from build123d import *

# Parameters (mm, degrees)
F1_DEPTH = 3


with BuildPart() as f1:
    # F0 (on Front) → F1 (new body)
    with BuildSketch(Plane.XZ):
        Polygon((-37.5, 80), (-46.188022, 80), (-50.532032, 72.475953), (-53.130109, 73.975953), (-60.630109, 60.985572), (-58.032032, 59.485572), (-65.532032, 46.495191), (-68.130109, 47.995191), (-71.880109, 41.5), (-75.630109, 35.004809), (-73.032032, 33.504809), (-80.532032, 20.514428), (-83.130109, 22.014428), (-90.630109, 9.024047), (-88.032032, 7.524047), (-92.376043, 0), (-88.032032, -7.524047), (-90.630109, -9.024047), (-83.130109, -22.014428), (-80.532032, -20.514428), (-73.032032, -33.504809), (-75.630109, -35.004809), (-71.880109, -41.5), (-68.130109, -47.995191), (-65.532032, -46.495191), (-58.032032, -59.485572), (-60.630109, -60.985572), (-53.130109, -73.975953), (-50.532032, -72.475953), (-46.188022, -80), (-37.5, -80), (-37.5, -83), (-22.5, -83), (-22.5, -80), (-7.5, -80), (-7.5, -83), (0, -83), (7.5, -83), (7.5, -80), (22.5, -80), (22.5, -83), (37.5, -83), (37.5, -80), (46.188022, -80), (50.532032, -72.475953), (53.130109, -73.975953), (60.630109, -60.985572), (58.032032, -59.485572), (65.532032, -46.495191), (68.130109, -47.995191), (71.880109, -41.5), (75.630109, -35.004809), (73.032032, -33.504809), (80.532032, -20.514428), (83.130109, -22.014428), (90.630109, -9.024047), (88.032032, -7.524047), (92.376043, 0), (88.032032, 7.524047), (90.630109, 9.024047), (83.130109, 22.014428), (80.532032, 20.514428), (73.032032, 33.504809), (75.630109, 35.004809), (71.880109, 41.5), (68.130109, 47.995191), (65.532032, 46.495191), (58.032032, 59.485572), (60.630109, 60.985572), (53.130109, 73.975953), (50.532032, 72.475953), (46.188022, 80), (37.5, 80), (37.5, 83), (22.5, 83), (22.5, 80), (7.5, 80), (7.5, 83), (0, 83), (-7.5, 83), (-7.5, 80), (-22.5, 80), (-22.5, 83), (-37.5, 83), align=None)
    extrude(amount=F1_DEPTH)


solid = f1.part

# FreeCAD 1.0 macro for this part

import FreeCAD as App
import Part
import Sketcher

V = App.Vector
Q = App.Units.Quantity


def add_polygon(sketch, points):
    """Adds a closed chain of lines whose ends are joined by coincident constraints."""
    first, n = sketch.GeometryCount, len(points)
    for a, b in zip(points, points[1:] + points[:1]):
        sketch.addGeometry(Part.LineSegment(App.Vector(*a, 0), App.Vector(*b, 0)), False)
    for i in range(n):
        sketch.addConstraint(Sketcher.Constraint("Coincident", first + i, 2, first + (i + 1) % n, 1))

doc = App.newDocument("Part")
params = doc.addObject("Spreadsheet::Sheet", "Params")
for row, (alias, value) in enumerate([
    ("sketch1_width", "15 mm"),
    ("sketch1_height", "3 mm"),
    ("sketch1_length", "3.000001 mm"),
    ("sketch1_length2", "15 mm"),
    ("pad1_length", "3 mm"),
], start=1):
    params.set(f"A{row}", alias)
    params.set(f"B{row}", "=" + value)
    params.setAlias(f"B{row}", alias)

body = doc.addObject("PartDesign::Body", "Body")

# Sketch on XZ plane
sketch1 = body.newObject("Sketcher::SketchObject", "Sketch")
sketch1.AttachmentSupport = (doc.getObject("XZ_Plane"), [""])
sketch1.MapMode = "FlatFace"
add_polygon(sketch1, [(-37.5, 80), (-46.2, 80), (-50.5, 72.5), (-53.1, 74), (-60.6, 61), (-58, 59.5), (-65.5, 46.5), (-68.1, 48), (-75.6, 35), (-73, 33.5), (-80.5, 20.5), (-83.1, 22), (-90.6, 9), (-88, 7.5), (-92.4, 0), (-88, -7.5), (-90.6, -9), (-83.1, -22), (-80.5, -20.5), (-73, -33.5), (-75.6, -35), (-68.1, -48), (-65.5, -46.5), (-58, -59.5), (-60.6, -61), (-53.1, -74), (-50.5, -72.5), (-46.2, -80), (-37.5, -80), (-37.5, -83), (-22.5, -83), (-22.5, -80), (-7.5, -80), (-7.5, -83), (7.5, -83), (7.5, -80), (22.5, -80), (22.5, -83), (37.5, -83), (37.5, -80), (46.2, -80), (50.5, -72.5), (53.1, -74), (60.6, -61), (58, -59.5), (65.5, -46.5), (68.1, -48), (75.6, -35), (73, -33.5), (80.5, -20.5), (83.1, -22), (90.6, -9), (88, -7.5), (92.4, 0), (88, 7.5), (90.6, 9), (83.1, 22), (80.5, 20.5), (73, 33.5), (75.6, 35), (68.1, 48), (65.5, 46.5), (58, 59.5), (60.6, 61), (53.1, 74), (50.5, 72.5), (46.2, 80), (37.5, 80), (37.5, 83), (22.5, 83), (22.5, 80), (7.5, 80), (7.5, 83), (-7.5, 83), (-7.5, 80), (-22.5, 80), (-22.5, 83), (-37.5, 83)])  # lines 0-77
sketch1.addConstraint([
    Sketcher.Constraint("Horizontal", 0),
    Sketcher.Constraint("Horizontal", 27),
    Sketcher.Constraint("Vertical", 28),
    Sketcher.Constraint("Horizontal", 29),
    Sketcher.Constraint("Vertical", 30),
    Sketcher.Constraint("Horizontal", 31),
    Sketcher.Constraint("Vertical", 32),
    Sketcher.Constraint("Horizontal", 33),
    Sketcher.Constraint("Vertical", 34),
    Sketcher.Constraint("Horizontal", 35),
    Sketcher.Constraint("Vertical", 36),
    Sketcher.Constraint("Horizontal", 37),
    Sketcher.Constraint("Vertical", 38),
    Sketcher.Constraint("Horizontal", 39),
    Sketcher.Constraint("Horizontal", 66),
    Sketcher.Constraint("Vertical", 67),
    Sketcher.Constraint("Horizontal", 68),
    Sketcher.Constraint("Vertical", 69),
    Sketcher.Constraint("Horizontal", 70),
    Sketcher.Constraint("Vertical", 71),
    Sketcher.Constraint("Horizontal", 72),
    Sketcher.Constraint("Vertical", 73),
    Sketcher.Constraint("Horizontal", 74),
    Sketcher.Constraint("Vertical", 75),
    Sketcher.Constraint("Horizontal", 76),
    Sketcher.Constraint("Vertical", 77),
    Sketcher.Constraint("Symmetric", 0, 2, 39, 2, -1, 1),
    Sketcher.Constraint("Symmetric", 1, 2, 40, 2, -1, 1),
    Sketcher.Constraint("Symmetric", 2, 2, 41, 2, -1, 1),
    Sketcher.Constraint("Symmetric", 3, 2, 42, 2, -1, 1),
    Sketcher.Constraint("Symmetric", 4, 2, 43, 2, -1, 1),
    Sketcher.Constraint("Symmetric", 5, 2, 44, 2, -1, 1),
    Sketcher.Constraint("Symmetric", 6, 2, 45, 2, -1, 1),
    Sketcher.Constraint("Symmetric", 7, 2, 46, 2, -1, 1),
    Sketcher.Constraint("Symmetric", 8, 2, 47, 2, -1, 1),
    Sketcher.Constraint("Symmetric", 9, 2, 48, 2, -1, 1),
    Sketcher.Constraint("Symmetric", 10, 2, 49, 2, -1, 1),
    Sketcher.Constraint("Symmetric", 11, 2, 50, 2, -1, 1),
    Sketcher.Constraint("Symmetric", 12, 2, 51, 2, -1, 1),
    Sketcher.Constraint("Symmetric", 13, 2, 52, 2, -1, 1),
    Sketcher.Constraint("Symmetric", 14, 2, 53, 2, -1, 1),
    Sketcher.Constraint("Symmetric", 15, 2, 54, 2, -1, 1),
    Sketcher.Constraint("Symmetric", 16, 2, 55, 2, -1, 1),
    Sketcher.Constraint("Symmetric", 17, 2, 56, 2, -1, 1),
    Sketcher.Constraint("Symmetric", 18, 2, 57, 2, -1, 1),
    Sketcher.Constraint("Symmetric", 19, 2, 58, 2, -1, 1),
    Sketcher.Constraint("Symmetric", 20, 2, 59, 2, -1, 1),
    Sketcher.Constraint("Symmetric", 21, 2, 60, 2, -1, 1),
    Sketcher.Constraint("Symmetric", 22, 2, 61, 2, -1, 1),
    Sketcher.Constraint("Symmetric", 23, 2, 62, 2, -1, 1),
    Sketcher.Constraint("Symmetric", 24, 2, 63, 2, -1, 1),
    Sketcher.Constraint("Symmetric", 25, 2, 64, 2, -1, 1),
    Sketcher.Constraint("Symmetric", 26, 2, 65, 2, -1, 1),
    Sketcher.Constraint("Symmetric", 28, 2, 67, 2, -1, 1),
    Sketcher.Constraint("Symmetric", 30, 2, 69, 2, -1, 1),
    Sketcher.Constraint("Symmetric", 32, 2, 71, 2, -1, 1),
    Sketcher.Constraint("Symmetric", 34, 2, 73, 2, -1, 1),
    Sketcher.Constraint("Symmetric", 36, 2, 75, 2, -1, 1),
    Sketcher.Constraint("Symmetric", 31, 2, 34, 2, -2),
    Sketcher.Constraint("Symmetric", 29, 2, 36, 2, -2),
    Sketcher.Constraint("Symmetric", 27, 2, 38, 2, -2),
    Sketcher.Constraint("Symmetric", 25, 2, 40, 2, -2),
    Sketcher.Constraint("Symmetric", 24, 2, 41, 2, -2),
    Sketcher.Constraint("Symmetric", 23, 2, 42, 2, -2),
    Sketcher.Constraint("Symmetric", 22, 2, 43, 2, -2),
    Sketcher.Constraint("Symmetric", 21, 2, 44, 2, -2),
    Sketcher.Constraint("Symmetric", 20, 2, 45, 2, -2),
    Sketcher.Constraint("Symmetric", 19, 2, 46, 2, -2),
    Sketcher.Constraint("Symmetric", 18, 2, 47, 2, -2),
    Sketcher.Constraint("Symmetric", 17, 2, 48, 2, -2),
    Sketcher.Constraint("Symmetric", 16, 2, 49, 2, -2),
    Sketcher.Constraint("Symmetric", 15, 2, 50, 2, -2),
    Sketcher.Constraint("Symmetric", 14, 2, 51, 2, -2),
    Sketcher.Constraint("PointOnObject", 13, 2, -1),
    Sketcher.Constraint("Perpendicular", 1, 2),
    Sketcher.Constraint("Perpendicular", 2, 3),
    Sketcher.Constraint("Perpendicular", 3, 4),
    Sketcher.Constraint("Perpendicular", 4, 5),
    Sketcher.Constraint("Perpendicular", 5, 6),
    Sketcher.Constraint("Perpendicular", 6, 7),
    Sketcher.Constraint("Perpendicular", 7, 8),
    Sketcher.Constraint("Perpendicular", 8, 9),
    Sketcher.Constraint("Perpendicular", 9, 10),
    Sketcher.Constraint("Perpendicular", 10, 11),
    Sketcher.Constraint("Perpendicular", 11, 12),
    Sketcher.Constraint("Perpendicular", 12, 13),
    Sketcher.Constraint("Perpendicular", 25, 26),
    Sketcher.Constraint("Horizontal", 27, 2, 30, 2),
    Sketcher.Constraint("Horizontal", 29, 2, 32, 2),
    Sketcher.Constraint("Vertical", 28, 2, 76, 2),
    Sketcher.Constraint("Equal", 29, 31),
    Sketcher.Constraint("Equal", 31, 33),
    Sketcher.Constraint("Equal", 2, 4),
    Sketcher.Constraint("Equal", 3, 5),
    Sketcher.Constraint("Equal", 4, 6),
    Sketcher.Constraint("Equal", 5, 7),
    Sketcher.Constraint("Equal", 6, 8),
    Sketcher.Constraint("Equal", 7, 9),
    Sketcher.Constraint("Equal", 8, 10),
    Sketcher.Constraint("Equal", 9, 11),
    Sketcher.Constraint("Equal", 10, 12),
    Sketcher.Constraint("Equal", 1, 13),
    Sketcher.Constraint("DistanceX", 29, 1, 29, 2, Q("15 mm")),
    Sketcher.Constraint("DistanceY", 28, 2, 28, 1, Q("3 mm")),
    Sketcher.Constraint("Angle", 1, Q("-119.999997 deg")),
    Sketcher.Constraint("Distance", 2, Q("3.000001 mm")),
    Sketcher.Constraint("Distance", 3, Q("15 mm")),
    Sketcher.Constraint("DistanceY", -1, 1, 0, 2, Q("80 mm")),
    Sketcher.Constraint("DistanceX", 0, 2, 0, 1, Q("8.688022 mm")),
])
sketch1.setExpression("Constraints[180]", "Params.sketch1_width")
sketch1.setExpression("Constraints[181]", "Params.sketch1_height")
sketch1.setExpression("Constraints[183]", "Params.sketch1_length")
sketch1.setExpression("Constraints[184]", "Params.sketch1_length2")
pad1 = body.newObject("PartDesign::Pad", "Pad")
pad1.Profile = sketch1
pad1.setExpression("Length", "Params.pad1_length")

doc.recompute()
